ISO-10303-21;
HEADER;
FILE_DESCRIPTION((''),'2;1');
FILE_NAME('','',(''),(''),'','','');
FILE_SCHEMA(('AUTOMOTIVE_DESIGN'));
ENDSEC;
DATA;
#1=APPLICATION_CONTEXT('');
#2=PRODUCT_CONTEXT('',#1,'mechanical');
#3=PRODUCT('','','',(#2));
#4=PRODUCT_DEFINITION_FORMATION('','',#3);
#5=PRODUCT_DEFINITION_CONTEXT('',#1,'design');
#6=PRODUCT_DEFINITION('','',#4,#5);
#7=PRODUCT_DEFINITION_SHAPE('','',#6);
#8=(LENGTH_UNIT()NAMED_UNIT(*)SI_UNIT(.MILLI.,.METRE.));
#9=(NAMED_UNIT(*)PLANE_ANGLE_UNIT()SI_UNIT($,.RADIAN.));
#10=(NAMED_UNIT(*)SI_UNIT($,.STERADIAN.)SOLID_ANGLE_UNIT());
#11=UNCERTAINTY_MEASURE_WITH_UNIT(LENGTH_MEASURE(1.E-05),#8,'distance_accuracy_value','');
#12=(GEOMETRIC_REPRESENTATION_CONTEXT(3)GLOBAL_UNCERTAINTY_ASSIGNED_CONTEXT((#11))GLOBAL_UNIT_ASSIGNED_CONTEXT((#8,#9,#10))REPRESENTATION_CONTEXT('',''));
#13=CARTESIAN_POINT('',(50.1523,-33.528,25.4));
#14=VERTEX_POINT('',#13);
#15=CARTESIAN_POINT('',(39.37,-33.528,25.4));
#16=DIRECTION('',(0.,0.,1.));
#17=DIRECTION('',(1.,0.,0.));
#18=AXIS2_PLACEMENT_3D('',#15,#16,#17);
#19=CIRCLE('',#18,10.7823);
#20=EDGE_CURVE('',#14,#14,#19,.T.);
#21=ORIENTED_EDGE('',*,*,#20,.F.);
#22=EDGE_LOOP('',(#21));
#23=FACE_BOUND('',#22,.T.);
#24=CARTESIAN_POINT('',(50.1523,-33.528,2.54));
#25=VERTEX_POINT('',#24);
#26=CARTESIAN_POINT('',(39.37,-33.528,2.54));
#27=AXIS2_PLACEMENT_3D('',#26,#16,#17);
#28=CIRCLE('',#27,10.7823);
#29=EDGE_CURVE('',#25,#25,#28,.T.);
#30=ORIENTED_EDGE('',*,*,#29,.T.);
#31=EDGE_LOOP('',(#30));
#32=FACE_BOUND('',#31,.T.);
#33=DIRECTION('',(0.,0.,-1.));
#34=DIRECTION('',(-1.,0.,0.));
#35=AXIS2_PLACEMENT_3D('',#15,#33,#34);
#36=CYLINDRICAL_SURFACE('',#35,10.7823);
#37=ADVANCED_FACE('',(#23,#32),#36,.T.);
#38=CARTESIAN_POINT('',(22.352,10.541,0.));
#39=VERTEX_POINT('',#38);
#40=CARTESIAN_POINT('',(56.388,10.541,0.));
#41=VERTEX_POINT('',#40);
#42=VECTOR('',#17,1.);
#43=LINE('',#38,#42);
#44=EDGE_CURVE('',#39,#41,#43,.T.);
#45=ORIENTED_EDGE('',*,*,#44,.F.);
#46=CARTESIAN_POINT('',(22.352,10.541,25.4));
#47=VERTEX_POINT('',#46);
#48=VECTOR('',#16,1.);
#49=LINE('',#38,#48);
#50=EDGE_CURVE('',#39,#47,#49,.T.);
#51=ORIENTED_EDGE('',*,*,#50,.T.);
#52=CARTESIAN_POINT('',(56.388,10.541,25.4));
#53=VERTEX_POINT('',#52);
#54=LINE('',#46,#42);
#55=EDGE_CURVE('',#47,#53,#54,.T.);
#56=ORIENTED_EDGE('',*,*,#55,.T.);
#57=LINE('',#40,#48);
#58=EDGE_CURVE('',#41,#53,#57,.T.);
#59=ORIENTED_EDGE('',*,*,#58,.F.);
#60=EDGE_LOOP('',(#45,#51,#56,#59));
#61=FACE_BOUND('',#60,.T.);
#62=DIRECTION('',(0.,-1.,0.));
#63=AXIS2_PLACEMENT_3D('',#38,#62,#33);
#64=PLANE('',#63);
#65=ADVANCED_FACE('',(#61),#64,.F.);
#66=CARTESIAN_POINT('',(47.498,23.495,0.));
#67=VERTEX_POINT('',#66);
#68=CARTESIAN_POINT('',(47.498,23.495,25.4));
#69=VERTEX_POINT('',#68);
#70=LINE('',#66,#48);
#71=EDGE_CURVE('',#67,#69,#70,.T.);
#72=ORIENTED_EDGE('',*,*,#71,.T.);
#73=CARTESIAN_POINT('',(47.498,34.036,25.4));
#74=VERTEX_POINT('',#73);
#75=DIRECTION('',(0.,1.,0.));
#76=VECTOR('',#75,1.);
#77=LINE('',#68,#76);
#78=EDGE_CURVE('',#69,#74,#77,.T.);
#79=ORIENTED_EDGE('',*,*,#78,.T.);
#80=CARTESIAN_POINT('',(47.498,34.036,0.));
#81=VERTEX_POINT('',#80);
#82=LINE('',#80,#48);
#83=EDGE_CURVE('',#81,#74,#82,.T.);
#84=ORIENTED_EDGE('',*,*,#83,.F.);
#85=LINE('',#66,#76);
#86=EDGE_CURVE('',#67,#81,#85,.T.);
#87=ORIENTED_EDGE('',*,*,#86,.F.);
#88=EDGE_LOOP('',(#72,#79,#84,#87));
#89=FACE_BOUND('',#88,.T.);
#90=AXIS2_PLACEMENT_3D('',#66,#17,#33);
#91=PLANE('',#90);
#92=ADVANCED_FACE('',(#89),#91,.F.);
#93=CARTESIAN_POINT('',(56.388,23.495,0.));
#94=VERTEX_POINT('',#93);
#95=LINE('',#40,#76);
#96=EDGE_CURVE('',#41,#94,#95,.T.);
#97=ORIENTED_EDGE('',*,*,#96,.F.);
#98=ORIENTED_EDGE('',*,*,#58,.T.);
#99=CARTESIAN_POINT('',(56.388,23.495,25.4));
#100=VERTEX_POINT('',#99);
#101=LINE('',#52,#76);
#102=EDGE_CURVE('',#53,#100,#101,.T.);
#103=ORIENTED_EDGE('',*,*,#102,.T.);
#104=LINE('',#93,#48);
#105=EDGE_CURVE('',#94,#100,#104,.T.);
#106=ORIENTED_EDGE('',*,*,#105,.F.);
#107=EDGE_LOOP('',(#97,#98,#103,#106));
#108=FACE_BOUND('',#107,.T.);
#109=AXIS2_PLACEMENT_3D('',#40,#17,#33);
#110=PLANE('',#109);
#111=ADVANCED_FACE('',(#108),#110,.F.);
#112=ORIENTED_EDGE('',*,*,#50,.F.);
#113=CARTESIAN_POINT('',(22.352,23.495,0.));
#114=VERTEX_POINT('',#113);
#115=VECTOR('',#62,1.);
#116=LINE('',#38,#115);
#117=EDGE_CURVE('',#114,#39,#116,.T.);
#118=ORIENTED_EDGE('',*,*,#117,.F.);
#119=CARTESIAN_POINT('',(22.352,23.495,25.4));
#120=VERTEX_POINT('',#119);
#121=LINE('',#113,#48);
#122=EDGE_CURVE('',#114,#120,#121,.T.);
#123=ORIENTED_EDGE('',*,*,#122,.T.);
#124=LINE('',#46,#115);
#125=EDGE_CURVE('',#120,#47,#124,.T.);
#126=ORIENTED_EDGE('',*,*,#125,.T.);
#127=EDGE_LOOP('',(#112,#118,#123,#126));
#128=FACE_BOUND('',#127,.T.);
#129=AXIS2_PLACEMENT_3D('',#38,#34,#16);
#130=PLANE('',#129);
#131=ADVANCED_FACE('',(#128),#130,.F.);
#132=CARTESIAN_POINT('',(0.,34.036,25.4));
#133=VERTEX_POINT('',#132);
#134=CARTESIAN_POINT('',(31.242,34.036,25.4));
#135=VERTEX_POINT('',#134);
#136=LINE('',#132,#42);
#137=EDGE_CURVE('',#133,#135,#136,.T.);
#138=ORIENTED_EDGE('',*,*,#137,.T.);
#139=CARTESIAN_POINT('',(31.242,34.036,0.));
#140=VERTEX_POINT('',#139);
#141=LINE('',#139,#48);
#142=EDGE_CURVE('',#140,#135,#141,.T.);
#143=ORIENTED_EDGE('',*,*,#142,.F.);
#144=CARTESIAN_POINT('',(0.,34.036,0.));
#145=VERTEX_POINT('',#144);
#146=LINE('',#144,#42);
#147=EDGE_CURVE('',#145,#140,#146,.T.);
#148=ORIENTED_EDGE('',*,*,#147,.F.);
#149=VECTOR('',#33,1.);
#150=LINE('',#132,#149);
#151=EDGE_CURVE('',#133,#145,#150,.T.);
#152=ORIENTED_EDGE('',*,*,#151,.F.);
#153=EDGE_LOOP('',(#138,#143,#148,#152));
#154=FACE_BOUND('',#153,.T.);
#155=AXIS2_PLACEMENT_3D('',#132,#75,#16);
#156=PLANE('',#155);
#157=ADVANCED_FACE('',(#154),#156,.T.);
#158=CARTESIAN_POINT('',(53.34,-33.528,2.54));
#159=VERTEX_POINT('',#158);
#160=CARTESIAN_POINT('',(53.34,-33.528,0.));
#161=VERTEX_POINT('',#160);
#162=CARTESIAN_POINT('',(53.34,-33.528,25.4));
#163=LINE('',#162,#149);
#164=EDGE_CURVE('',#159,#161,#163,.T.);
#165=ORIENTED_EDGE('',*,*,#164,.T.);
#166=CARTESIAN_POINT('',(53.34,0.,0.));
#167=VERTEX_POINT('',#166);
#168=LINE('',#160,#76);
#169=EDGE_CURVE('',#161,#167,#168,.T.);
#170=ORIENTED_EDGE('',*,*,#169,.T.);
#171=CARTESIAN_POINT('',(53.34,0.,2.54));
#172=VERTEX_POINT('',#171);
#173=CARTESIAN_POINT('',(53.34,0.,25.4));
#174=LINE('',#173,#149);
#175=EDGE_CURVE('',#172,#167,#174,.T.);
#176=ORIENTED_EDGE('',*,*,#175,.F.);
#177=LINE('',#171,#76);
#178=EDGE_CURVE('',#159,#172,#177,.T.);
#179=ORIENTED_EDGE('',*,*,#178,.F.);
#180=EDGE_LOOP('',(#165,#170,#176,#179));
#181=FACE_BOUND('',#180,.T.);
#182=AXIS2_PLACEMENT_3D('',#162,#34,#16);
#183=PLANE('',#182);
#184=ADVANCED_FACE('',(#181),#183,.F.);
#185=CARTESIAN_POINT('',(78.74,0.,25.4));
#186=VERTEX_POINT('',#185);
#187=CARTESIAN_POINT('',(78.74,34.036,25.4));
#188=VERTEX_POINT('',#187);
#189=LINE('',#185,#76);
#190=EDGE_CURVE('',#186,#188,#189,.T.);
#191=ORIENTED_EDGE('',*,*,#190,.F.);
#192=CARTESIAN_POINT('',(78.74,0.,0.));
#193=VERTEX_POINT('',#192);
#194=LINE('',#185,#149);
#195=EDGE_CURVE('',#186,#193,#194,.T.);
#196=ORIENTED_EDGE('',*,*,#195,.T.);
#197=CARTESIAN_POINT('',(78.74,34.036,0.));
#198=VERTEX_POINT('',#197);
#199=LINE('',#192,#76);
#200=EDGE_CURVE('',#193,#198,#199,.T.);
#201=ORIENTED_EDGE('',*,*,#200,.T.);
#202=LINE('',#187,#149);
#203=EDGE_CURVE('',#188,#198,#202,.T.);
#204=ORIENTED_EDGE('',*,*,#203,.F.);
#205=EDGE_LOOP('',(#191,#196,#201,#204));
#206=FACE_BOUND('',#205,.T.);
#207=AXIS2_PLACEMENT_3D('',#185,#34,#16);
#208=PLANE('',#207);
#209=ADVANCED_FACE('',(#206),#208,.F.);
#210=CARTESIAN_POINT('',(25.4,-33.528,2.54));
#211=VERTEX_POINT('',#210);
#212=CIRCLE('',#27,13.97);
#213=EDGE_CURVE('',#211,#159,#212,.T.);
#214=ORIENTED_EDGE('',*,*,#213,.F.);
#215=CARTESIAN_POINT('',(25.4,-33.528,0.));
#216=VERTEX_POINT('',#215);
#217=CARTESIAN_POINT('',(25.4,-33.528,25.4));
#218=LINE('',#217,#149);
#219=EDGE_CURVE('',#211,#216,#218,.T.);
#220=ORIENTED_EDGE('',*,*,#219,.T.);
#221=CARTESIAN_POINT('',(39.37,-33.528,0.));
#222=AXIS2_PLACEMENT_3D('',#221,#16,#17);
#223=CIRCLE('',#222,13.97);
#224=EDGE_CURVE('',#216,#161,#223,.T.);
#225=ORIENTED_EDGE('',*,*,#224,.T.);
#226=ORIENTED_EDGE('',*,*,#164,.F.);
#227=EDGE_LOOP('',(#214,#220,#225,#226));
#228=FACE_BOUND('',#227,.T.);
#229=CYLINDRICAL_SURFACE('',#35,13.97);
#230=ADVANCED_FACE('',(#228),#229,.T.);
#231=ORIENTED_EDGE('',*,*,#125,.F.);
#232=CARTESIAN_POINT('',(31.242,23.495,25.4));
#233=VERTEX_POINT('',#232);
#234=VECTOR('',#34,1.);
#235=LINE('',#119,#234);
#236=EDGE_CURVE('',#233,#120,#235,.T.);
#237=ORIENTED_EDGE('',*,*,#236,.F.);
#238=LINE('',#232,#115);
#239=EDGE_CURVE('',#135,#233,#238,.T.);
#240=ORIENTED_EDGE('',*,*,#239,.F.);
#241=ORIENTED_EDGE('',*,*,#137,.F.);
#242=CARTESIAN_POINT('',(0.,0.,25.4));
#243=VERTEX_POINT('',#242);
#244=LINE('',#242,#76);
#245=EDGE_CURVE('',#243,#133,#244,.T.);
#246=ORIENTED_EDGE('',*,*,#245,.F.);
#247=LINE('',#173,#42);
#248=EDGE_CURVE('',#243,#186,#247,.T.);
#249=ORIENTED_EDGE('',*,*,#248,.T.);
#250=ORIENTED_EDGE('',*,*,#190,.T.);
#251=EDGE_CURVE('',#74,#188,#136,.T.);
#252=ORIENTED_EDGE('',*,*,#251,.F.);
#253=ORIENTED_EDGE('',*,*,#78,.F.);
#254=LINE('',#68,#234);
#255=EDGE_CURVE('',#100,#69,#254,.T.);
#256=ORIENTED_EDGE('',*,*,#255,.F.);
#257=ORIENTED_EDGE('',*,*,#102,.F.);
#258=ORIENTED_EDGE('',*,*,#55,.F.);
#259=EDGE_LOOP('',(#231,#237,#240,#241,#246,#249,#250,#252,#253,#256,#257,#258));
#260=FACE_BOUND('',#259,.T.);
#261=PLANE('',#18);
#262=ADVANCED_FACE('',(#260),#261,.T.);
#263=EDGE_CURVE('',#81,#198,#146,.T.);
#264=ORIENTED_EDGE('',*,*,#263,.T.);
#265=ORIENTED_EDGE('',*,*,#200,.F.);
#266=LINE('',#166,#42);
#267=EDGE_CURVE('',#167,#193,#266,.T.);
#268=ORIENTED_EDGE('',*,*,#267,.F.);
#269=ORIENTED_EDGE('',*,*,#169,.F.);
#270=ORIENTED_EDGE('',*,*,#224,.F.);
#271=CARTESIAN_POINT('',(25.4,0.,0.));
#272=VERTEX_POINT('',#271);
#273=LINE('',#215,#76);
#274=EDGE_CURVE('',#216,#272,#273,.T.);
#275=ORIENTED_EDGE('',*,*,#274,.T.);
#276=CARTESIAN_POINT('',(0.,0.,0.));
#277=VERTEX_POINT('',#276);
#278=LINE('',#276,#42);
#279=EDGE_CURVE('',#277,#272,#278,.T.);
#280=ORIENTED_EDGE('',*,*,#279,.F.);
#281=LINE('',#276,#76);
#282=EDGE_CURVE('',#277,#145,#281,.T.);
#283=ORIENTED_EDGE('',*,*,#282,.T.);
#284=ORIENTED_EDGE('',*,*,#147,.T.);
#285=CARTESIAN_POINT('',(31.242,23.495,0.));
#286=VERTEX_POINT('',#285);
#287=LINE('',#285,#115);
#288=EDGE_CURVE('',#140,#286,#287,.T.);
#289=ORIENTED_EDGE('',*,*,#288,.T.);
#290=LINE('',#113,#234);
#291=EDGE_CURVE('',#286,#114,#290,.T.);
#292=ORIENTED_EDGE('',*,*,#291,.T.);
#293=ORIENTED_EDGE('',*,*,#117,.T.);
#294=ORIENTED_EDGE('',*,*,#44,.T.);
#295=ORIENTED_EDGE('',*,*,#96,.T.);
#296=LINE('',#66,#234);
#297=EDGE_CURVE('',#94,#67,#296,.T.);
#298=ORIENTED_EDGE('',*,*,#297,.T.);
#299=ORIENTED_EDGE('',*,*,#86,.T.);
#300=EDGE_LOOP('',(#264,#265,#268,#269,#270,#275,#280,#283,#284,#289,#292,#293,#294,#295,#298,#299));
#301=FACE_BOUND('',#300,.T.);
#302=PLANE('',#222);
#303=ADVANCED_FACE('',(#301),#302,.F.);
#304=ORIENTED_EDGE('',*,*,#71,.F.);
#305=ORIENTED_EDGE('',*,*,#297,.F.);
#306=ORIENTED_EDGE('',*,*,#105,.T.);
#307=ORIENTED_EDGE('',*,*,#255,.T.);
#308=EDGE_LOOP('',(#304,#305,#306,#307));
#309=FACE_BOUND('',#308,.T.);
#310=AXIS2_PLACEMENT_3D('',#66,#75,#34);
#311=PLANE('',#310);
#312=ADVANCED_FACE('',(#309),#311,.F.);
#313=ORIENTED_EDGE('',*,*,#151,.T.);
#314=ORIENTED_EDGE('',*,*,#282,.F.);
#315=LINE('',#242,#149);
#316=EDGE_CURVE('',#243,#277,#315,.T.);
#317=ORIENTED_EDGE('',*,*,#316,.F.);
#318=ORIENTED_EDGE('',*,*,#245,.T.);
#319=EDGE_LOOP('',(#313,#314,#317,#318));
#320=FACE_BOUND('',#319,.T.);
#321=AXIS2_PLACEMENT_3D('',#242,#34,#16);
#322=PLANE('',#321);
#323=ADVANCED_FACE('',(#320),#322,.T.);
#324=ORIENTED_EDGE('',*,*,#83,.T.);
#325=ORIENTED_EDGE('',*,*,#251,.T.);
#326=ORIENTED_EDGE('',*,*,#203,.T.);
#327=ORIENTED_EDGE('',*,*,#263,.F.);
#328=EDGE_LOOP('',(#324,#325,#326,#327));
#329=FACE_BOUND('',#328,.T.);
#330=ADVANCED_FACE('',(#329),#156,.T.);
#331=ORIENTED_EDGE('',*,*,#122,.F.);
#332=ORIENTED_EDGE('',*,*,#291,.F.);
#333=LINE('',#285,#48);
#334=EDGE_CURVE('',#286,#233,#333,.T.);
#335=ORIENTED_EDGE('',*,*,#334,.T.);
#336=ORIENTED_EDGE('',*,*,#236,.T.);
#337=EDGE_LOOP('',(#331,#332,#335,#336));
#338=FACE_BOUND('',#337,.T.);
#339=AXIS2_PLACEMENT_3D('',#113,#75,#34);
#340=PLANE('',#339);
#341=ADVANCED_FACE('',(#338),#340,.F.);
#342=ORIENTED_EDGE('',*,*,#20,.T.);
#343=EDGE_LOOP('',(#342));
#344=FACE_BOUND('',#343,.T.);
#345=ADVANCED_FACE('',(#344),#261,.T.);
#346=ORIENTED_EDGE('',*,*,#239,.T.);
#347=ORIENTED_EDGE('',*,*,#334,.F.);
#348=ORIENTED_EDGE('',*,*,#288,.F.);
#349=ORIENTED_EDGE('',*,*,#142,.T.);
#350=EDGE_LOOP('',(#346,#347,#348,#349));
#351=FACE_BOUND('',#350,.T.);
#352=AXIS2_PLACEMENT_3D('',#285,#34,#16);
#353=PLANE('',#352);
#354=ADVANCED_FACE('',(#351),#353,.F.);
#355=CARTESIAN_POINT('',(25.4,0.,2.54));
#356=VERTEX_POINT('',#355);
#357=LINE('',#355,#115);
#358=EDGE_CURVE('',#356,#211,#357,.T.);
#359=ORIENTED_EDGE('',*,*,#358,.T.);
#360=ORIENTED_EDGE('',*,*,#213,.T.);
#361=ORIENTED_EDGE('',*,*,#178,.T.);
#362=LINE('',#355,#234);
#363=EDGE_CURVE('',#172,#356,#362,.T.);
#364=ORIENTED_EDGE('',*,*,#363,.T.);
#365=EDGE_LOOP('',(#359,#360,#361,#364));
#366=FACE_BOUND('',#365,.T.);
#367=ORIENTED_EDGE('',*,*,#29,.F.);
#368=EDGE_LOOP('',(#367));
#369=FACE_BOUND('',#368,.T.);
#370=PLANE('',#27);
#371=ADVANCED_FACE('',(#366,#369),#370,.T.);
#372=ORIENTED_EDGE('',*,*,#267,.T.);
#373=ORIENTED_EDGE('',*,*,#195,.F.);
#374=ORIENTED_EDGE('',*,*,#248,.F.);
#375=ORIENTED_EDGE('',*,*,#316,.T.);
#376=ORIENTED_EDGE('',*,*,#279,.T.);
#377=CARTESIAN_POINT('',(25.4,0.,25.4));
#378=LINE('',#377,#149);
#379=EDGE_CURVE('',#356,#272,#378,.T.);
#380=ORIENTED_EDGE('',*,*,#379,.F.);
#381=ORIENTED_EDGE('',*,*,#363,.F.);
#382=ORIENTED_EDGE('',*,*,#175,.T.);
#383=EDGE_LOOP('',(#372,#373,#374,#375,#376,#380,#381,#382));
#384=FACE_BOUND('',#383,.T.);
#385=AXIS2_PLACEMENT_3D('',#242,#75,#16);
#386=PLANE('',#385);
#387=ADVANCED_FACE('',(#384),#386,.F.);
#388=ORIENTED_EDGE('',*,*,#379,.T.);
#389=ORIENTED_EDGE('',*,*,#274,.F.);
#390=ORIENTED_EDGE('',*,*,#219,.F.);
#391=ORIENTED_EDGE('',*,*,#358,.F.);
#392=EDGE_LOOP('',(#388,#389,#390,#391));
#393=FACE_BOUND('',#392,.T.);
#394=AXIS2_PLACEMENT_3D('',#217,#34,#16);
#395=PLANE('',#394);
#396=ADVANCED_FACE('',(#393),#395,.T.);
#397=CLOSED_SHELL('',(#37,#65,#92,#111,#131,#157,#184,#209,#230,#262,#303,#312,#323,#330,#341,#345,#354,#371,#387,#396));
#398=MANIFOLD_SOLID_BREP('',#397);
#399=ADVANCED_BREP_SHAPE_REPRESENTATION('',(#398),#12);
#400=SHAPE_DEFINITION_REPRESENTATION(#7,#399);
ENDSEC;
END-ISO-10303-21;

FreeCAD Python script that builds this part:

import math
import FreeCAD as App
import Part
import Sketcher
from FreeCAD import Vector
Q = App.Units.Quantity

doc = App.newDocument("Part")
params = doc.addObject("Spreadsheet::Sheet", "Params")
for row, (alias, value) in enumerate([
    ("sketch1_width", "1 in"),
    ("sketch1_radius", "0.55 in"),
    ("sketch1_height", "1.32 in"),
    ("sketch1_height2", "1.34 in"),
    ("pad1_length", "1 in"),
    ("sketch2_width", "0.35 in"),
    ("sketch2_width2", "0.64 in"),
    ("sketch2_height", "0.51 in"),
    ("sketch2_height2", "0.415 in"),
    ("sketch3_radius", "0.55 in"),
    ("sketch3_height", "1.32 in"),
    ("pocket2_length", "0.9 in"),
    ("sketch4_diameter", "0.849 in"),
    ("pad2_length", "0.9 in"),
], start=1):
    params.set(f"A{row}", alias)
    params.set(f"B{row}", "=" + value)
    params.setAlias(f"B{row}", alias)

body = doc.addObject("PartDesign::Body", "Body")

sketch1 = body.newObject("Sketcher::SketchObject", "Sketch")
sketch1.AttachmentSupport = (doc.getObject("XY_Plane"), [""])
sketch1.MapMode = "FlatFace"
sketch1.addGeometry([
    Part.LineSegment(Vector(0, 0, 0), Vector(25.4, 0, 0)),
    Part.LineSegment(Vector(25.4, 0, 0), Vector(25.4, -33.528, 0)),
    Part.ArcOfCircle(Part.Circle(Vector(39.37, -33.528, 0), Vector(0, 0, 1), 13.97), math.radians(180), math.radians(360)),
    Part.LineSegment(Vector(53.34, -33.528, 0), Vector(53.34, 0, 0)),
    Part.LineSegment(Vector(53.34, 0, 0), Vector(78.74, 0, 0)),
    Part.LineSegment(Vector(78.74, 0, 0), Vector(78.74, 34.036, 0)),
    Part.LineSegment(Vector(78.74, 34.036, 0), Vector(0, 34.036, 0)),
    Part.LineSegment(Vector(0, 34.036, 0), Vector(0, 0, 0)),
], False)
sketch1.addConstraint([
    Sketcher.Constraint("Coincident", 0, 2, 1, 1),
    Sketcher.Constraint("Tangent", 1, 2, 2, 1),
    Sketcher.Constraint("Tangent", 2, 2, 3, 1),
    Sketcher.Constraint("Coincident", 3, 2, 4, 1),
    Sketcher.Constraint("Coincident", 4, 2, 5, 1),
    Sketcher.Constraint("Coincident", 5, 2, 6, 1),
    Sketcher.Constraint("Coincident", 6, 2, 7, 1),
    Sketcher.Constraint("Coincident", 7, 2, 0, 1),
    Sketcher.Constraint("Horizontal", 0),
    Sketcher.Constraint("Vertical", 1),
    Sketcher.Constraint("Vertical", 3),
    Sketcher.Constraint("Horizontal", 4),
    Sketcher.Constraint("Vertical", 5),
    Sketcher.Constraint("Horizontal", 6),
    Sketcher.Constraint("Vertical", 7),
    Sketcher.Constraint("Coincident", 7, 2, -1, 1),
    Sketcher.Constraint("PointOnObject", 3, 2, -1),
    Sketcher.Constraint("Equal", 0, 4),
    Sketcher.Constraint("DistanceX", 0, 1, 0, 2, Q("1 in")),
    Sketcher.Constraint("Radius", 2, Q("0.55 in")),
    Sketcher.Constraint("DistanceY", 1, 2, 1, 1, Q("1.32 in")),
    Sketcher.Constraint("DistanceY", 5, 1, 5, 2, Q("1.34 in")),
])
sketch1.setExpression("Constraints[18]", "Params.sketch1_width")
sketch1.setExpression("Constraints[19]", "Params.sketch1_radius")
sketch1.setExpression("Constraints[20]", "Params.sketch1_height")
sketch1.setExpression("Constraints[21]", "Params.sketch1_height2")
pad1 = body.newObject("PartDesign::Pad", "Pad")
pad1.Profile = sketch1
pad1.setExpression("Length", "Params.pad1_length")

sketch2 = body.newObject("Sketcher::SketchObject", "Sketch001")
sketch2.AttachmentSupport = (doc.getObject("XY_Plane"), [""])
sketch2.MapMode = "FlatFace"
sketch2.AttachmentOffset = App.Placement(Vector(0, 0, 1 * 25.4), App.Rotation())
sketch2.addGeometry([
    Part.LineSegment(Vector(56.388, 23.495, 0), Vector(47.498, 23.495, 0)),
    Part.LineSegment(Vector(47.498, 23.495, 0), Vector(47.498, 34.036, 0)),
    Part.LineSegment(Vector(47.498, 34.036, 0), Vector(31.242, 34.036, 0)),
    Part.LineSegment(Vector(31.242, 34.036, 0), Vector(31.242, 23.495, 0)),
    Part.LineSegment(Vector(31.242, 23.495, 0), Vector(22.352, 23.495, 0)),
    Part.LineSegment(Vector(22.352, 23.495, 0), Vector(22.352, 10.541, 0)),
    Part.LineSegment(Vector(22.352, 10.541, 0), Vector(56.388, 10.541, 0)),
    Part.LineSegment(Vector(56.388, 10.541, 0), Vector(56.388, 23.495, 0)),
], False)
sketch2.addConstraint([
    Sketcher.Constraint("Coincident", 0, 2, 1, 1),
    Sketcher.Constraint("Coincident", 1, 2, 2, 1),
    Sketcher.Constraint("Coincident", 2, 2, 3, 1),
    Sketcher.Constraint("Coincident", 3, 2, 4, 1),
    Sketcher.Constraint("Coincident", 4, 2, 5, 1),
    Sketcher.Constraint("Coincident", 5, 2, 6, 1),
    Sketcher.Constraint("Coincident", 6, 2, 7, 1),
    Sketcher.Constraint("Coincident", 7, 2, 0, 1),
    Sketcher.Constraint("Horizontal", 0),
    Sketcher.Constraint("Vertical", 1),
    Sketcher.Constraint("Horizontal", 2),
    Sketcher.Constraint("Vertical", 3),
    Sketcher.Constraint("Horizontal", 4),
    Sketcher.Constraint("Vertical", 5),
    Sketcher.Constraint("Horizontal", 6),
    Sketcher.Constraint("Vertical", 7),
    Sketcher.Constraint("Horizontal", 0, 2, 3, 2),
    Sketcher.Constraint("Equal", 0, 4),
    Sketcher.Constraint("DistanceX", 0, 2, 0, 1, Q("0.35 in")),
    Sketcher.Constraint("DistanceX", 2, 2, 2, 1, Q("0.64 in")),
    Sketcher.Constraint("DistanceY", 5, 2, 5, 1, Q("0.51 in")),
    Sketcher.Constraint("DistanceY", 1, 1, 1, 2, Q("0.415 in")),
    Sketcher.Constraint("DistanceX", -1, 1, 0, 2, Q("1.87 in")),
    Sketcher.Constraint("DistanceY", -1, 1, 1, 2, Q("1.34 in")),
])
sketch2.setExpression("Constraints[18]", "Params.sketch2_width")
sketch2.setExpression("Constraints[19]", "Params.sketch2_width2")
sketch2.setExpression("Constraints[20]", "Params.sketch2_height")
sketch2.setExpression("Constraints[21]", "Params.sketch2_height2")
pocket1 = body.newObject("PartDesign::Pocket", "Pocket")
pocket1.Profile = sketch2
pocket1.Type = "ThroughAll"

sketch3 = body.newObject("Sketcher::SketchObject", "Sketch002")
sketch3.AttachmentSupport = (doc.getObject("XY_Plane"), [""])
sketch3.MapMode = "FlatFace"
sketch3.AttachmentOffset = App.Placement(Vector(0, 0, 0.1 * 25.4), App.Rotation())
sketch3.addGeometry([
    Part.LineSegment(Vector(53.34, 0, 0), Vector(25.4, 0, 0)),
    Part.LineSegment(Vector(25.4, 0, 0), Vector(25.4, -33.528, 0)),
    Part.ArcOfCircle(Part.Circle(Vector(39.37, -33.528, 0), Vector(0, 0, 1), 13.97), math.radians(180), math.radians(360)),
    Part.LineSegment(Vector(53.34, -33.528, 0), Vector(53.34, 0, 0)),
], False)
sketch3.addConstraint([
    Sketcher.Constraint("Coincident", 0, 2, 1, 1),
    Sketcher.Constraint("Tangent", 1, 2, 2, 1),
    Sketcher.Constraint("Tangent", 2, 2, 3, 1),
    Sketcher.Constraint("Coincident", 3, 2, 0, 1),
    Sketcher.Constraint("Horizontal", 0),
    Sketcher.Constraint("Vertical", 1),
    Sketcher.Constraint("Vertical", 3),
    Sketcher.Constraint("PointOnObject", 0, 2, -1),
    Sketcher.Constraint("Radius", 2, Q("0.55 in")),
    Sketcher.Constraint("DistanceX", -1, 1, 0, 2, Q("1 in")),
    Sketcher.Constraint("DistanceY", 1, 2, 1, 1, Q("1.32 in")),
])
sketch3.setExpression("Constraints[8]", "Params.sketch3_radius")
sketch3.setExpression("Constraints[10]", "Params.sketch3_height")
pocket2 = body.newObject("PartDesign::Pocket", "Pocket001")
pocket2.Profile = sketch3
pocket2.setExpression("Length", "Params.pocket2_length")
pocket2.Reversed = True

sketch4 = body.newObject("Sketcher::SketchObject", "Sketch003")
sketch4.AttachmentSupport = (doc.getObject("XY_Plane"), [""])
sketch4.MapMode = "FlatFace"
sketch4.AttachmentOffset = App.Placement(Vector(0, 0, 0.1 * 25.4), App.Rotation())
sketch4.addGeometry(Part.Circle(Vector(39.37, -33.528, 0), Vector(0, 0, 1), 10.7823), False)
sketch4.addConstraint([
    Sketcher.Constraint("Diameter", 0, Q("0.849 in")),
    Sketcher.Constraint("DistanceX", -1, 1, 0, 3, Q("1.55 in")),
    Sketcher.Constraint("DistanceY", 0, 3, -1, 1, Q("1.32 in")),
])
sketch4.setExpression("Constraints[0]", "Params.sketch4_diameter")
pad2 = body.newObject("PartDesign::Pad", "Pad001")
pad2.Profile = sketch4
pad2.setExpression("Length", "Params.pad2_length")

doc.recompute()
